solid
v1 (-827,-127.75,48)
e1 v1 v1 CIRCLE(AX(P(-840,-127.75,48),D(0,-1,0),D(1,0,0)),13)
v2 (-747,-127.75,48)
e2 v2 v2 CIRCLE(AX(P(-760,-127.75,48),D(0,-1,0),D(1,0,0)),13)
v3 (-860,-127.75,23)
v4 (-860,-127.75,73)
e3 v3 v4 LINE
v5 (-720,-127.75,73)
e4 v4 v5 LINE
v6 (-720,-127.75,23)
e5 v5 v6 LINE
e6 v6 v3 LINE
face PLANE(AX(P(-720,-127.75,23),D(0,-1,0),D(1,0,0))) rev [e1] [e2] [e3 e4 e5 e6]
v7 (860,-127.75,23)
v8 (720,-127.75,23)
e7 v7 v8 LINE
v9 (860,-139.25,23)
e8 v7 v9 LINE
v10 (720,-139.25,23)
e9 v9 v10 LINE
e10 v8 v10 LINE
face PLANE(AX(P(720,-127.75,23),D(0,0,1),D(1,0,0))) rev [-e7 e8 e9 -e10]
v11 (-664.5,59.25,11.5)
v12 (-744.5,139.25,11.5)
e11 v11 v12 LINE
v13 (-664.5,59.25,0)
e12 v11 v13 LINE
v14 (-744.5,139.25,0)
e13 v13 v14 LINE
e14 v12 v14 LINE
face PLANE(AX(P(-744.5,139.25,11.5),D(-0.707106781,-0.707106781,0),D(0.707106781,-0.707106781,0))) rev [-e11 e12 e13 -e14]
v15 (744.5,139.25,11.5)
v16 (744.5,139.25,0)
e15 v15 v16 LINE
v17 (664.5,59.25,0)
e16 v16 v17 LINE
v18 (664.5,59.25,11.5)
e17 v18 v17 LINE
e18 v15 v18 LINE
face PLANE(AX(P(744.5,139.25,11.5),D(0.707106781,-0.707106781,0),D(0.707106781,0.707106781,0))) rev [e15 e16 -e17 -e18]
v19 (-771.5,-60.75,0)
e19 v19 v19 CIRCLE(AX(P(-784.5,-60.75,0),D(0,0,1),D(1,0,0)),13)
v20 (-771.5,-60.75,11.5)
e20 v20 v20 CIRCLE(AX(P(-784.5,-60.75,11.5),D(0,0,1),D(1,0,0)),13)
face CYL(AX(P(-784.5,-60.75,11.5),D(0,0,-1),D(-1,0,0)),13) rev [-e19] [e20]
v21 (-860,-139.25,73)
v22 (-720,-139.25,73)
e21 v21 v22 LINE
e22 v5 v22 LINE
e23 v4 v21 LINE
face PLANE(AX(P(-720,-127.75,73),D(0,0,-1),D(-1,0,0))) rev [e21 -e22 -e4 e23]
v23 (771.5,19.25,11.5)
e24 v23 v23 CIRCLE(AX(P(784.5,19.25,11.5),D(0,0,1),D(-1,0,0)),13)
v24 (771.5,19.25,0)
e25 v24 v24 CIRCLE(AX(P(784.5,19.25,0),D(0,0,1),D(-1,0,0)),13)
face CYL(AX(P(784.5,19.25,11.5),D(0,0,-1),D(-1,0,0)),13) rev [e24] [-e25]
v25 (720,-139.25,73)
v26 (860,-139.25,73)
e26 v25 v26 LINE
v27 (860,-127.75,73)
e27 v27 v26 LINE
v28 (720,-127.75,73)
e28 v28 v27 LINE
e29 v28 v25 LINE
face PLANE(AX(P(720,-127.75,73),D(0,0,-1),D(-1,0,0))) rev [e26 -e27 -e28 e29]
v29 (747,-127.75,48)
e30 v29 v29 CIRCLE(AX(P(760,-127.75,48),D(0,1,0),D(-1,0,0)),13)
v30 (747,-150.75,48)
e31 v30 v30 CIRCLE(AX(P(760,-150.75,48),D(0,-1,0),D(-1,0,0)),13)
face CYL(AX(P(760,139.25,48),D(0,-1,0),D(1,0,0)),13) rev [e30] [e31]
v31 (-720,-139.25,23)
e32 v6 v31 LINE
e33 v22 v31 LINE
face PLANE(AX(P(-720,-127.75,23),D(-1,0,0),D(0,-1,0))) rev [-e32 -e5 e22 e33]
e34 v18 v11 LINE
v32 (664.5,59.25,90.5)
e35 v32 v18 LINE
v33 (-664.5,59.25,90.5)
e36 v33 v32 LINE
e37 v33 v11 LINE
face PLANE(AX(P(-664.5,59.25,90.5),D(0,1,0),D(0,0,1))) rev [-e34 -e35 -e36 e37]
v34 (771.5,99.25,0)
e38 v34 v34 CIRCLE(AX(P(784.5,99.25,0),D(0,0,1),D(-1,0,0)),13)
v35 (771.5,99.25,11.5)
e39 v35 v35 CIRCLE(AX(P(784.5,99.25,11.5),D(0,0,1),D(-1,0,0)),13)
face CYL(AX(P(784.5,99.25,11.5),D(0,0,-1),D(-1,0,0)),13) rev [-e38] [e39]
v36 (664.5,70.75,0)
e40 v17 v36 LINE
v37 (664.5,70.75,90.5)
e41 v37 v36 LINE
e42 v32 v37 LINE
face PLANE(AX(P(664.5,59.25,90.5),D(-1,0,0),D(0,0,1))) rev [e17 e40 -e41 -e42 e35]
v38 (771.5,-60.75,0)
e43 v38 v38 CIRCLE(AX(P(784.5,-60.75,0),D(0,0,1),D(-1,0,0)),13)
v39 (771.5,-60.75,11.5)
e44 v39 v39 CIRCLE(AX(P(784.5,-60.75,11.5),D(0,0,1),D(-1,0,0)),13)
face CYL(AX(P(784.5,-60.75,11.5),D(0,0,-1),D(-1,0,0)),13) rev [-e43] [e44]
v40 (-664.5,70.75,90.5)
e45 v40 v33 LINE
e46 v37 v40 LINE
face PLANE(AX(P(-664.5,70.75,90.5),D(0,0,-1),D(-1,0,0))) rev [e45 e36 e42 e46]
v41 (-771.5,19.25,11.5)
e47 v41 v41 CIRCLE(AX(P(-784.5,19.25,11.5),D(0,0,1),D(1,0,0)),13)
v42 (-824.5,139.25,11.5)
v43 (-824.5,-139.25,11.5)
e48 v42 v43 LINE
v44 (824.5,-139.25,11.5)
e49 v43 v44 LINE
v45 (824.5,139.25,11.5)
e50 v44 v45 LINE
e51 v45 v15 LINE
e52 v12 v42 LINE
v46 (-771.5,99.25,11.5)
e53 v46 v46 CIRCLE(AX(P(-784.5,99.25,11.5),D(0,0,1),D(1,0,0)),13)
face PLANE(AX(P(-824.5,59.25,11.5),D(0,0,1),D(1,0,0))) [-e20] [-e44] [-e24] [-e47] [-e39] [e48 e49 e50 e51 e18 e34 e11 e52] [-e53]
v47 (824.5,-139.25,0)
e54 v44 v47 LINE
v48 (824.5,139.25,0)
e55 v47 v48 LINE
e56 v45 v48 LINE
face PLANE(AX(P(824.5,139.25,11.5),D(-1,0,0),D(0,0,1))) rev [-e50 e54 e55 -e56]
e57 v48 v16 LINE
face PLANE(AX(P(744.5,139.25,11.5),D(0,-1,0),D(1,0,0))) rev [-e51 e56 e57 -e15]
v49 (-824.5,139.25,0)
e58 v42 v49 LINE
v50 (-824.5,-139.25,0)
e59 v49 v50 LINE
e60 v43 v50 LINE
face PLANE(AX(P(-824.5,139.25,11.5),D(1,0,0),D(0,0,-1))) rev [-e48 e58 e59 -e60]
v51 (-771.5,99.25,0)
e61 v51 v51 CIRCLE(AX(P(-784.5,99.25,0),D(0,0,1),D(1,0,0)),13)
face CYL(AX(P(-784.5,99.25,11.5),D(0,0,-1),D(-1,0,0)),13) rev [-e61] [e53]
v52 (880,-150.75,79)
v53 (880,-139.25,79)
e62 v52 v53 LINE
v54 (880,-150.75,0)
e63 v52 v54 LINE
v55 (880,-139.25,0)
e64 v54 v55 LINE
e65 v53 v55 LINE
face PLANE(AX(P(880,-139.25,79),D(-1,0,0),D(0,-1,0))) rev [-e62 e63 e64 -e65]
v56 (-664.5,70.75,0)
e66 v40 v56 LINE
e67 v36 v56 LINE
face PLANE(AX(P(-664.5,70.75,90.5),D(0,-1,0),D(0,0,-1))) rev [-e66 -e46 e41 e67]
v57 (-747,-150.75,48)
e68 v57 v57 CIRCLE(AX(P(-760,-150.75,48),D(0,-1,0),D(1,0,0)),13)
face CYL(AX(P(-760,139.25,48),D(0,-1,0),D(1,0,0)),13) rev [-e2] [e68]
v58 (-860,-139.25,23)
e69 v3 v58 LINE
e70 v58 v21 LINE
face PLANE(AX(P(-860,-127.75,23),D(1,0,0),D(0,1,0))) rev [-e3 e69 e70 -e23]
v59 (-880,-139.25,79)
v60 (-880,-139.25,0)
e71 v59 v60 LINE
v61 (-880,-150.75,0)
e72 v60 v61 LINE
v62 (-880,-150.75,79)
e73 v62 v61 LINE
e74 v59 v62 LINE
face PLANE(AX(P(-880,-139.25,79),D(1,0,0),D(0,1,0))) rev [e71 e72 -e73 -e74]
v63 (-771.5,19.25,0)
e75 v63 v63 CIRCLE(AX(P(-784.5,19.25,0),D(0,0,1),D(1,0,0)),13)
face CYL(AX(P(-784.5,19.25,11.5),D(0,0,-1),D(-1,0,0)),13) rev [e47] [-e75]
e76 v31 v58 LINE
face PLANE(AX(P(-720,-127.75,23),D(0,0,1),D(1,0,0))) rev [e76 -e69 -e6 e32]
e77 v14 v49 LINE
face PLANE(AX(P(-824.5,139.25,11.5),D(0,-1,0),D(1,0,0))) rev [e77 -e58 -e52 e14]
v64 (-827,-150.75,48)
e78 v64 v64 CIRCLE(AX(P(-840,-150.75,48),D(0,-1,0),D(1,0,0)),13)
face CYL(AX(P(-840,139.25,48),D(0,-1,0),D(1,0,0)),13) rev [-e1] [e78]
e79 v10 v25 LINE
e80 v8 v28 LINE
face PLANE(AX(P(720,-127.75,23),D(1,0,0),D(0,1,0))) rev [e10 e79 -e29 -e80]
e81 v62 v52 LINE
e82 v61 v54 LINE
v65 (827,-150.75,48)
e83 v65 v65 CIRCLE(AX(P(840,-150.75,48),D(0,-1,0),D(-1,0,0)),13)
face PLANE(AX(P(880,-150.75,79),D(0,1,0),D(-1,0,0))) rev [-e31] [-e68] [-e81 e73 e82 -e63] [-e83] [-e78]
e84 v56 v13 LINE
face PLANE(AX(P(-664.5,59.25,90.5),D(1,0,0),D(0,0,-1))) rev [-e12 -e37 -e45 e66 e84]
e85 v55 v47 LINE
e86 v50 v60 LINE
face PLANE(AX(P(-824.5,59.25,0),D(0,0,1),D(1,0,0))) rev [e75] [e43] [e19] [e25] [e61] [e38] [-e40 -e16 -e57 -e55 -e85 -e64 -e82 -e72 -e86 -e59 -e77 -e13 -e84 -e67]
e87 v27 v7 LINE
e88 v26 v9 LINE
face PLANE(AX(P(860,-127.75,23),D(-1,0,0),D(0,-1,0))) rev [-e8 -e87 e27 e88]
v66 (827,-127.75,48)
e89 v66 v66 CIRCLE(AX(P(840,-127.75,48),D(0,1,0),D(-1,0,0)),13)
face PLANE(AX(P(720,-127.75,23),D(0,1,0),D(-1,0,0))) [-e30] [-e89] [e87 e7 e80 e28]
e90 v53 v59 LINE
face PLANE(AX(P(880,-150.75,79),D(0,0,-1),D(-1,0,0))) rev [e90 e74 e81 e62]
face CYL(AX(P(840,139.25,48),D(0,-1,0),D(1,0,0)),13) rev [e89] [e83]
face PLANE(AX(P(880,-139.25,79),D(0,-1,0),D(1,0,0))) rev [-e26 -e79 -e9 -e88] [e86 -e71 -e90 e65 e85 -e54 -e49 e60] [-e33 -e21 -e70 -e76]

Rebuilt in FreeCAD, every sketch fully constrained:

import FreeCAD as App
import Part
import Sketcher


def add_polygon(sketch, points):
    """Adds a closed chain of lines whose ends are joined by coincident constraints."""
    first, n = sketch.GeometryCount, len(points)
    for a, b in zip(points, points[1:] + points[:1]):
        sketch.addGeometry(Part.LineSegment(App.Vector(*a, 0), App.Vector(*b, 0)), False)
    for i in range(n):
        sketch.addConstraint(Sketcher.Constraint("Coincident", first + i, 2, first + (i + 1) % n, 1))

doc = App.newDocument("Part")
body = doc.addObject("PartDesign::Body", "Body")

# Sketch on XY plane
sketch1 = body.newObject("Sketcher::SketchObject", "Sketch")
sketch1.AttachmentSupport = (doc.getObject("XY_Plane"), [""])
sketch1.MapMode = "FlatFace"
add_polygon(sketch1, [(-664.5, 59.25), (-744.5, 139.25), (-824.5, 139.25), (-824.5, -139.25), (824.5, -139.25), (824.5, 139.25), (744.5, 139.25), (664.5, 59.25)])  # lines 0-7
sketch1.addGeometry(Part.Circle(App.Vector(784.5, -60.75, 0), App.Vector(0, 0, 1), 13), False)  # 8
sketch1.addGeometry(Part.Circle(App.Vector(-784.5, -60.75, 0), App.Vector(0, 0, 1), 13), False)  # 9
sketch1.addGeometry(Part.Circle(App.Vector(784.5, 19.25, 0), App.Vector(0, 0, 1), 13), False)  # 10
sketch1.addGeometry(Part.Circle(App.Vector(784.5, 99.25, 0), App.Vector(0, 0, 1), 13), False)  # 11
sketch1.addGeometry(Part.Circle(App.Vector(-784.5, 19.25, 0), App.Vector(0, 0, 1), 13), False)  # 12
sketch1.addGeometry(Part.Circle(App.Vector(-784.5, 99.25, 0), App.Vector(0, 0, 1), 13), False)  # 13
sketch1.addConstraint([
    Sketcher.Constraint("Horizontal", 1),
    Sketcher.Constraint("Vertical", 2),
    Sketcher.Constraint("Horizontal", 3),
    Sketcher.Constraint("Vertical", 4),
    Sketcher.Constraint("Horizontal", 5),
    Sketcher.Constraint("Horizontal", 7),
    Sketcher.Constraint("Equal", 8, 9),
    Sketcher.Constraint("Equal", 9, 10),
    Sketcher.Constraint("Equal", 10, 11),
    Sketcher.Constraint("Equal", 11, 12),
    Sketcher.Constraint("Equal", 12, 13),
    Sketcher.Constraint("Symmetric", 1, 2, 3, 2, -1, 1),
    Sketcher.Constraint("Symmetric", 8, 3, 9, 3, -2),
    Sketcher.Constraint("Symmetric", 10, 3, 12, 3, -2),
    Sketcher.Constraint("Symmetric", 11, 3, 13, 3, -2),
    Sketcher.Constraint("Symmetric", 0, 2, 5, 2, -2),
    Sketcher.Constraint("Perpendicular", 0, 6),
    Sketcher.Constraint("Vertical", 8, 3, 10, 3),
    Sketcher.Constraint("Vertical", 10, 3, 11, 3),
    Sketcher.Constraint("Equal", 0, 6),
    Sketcher.Constraint("Diameter", 8, 26.0),
    Sketcher.Constraint("DistanceX", 1, 2, 1, 1, 80.0),
    Sketcher.Constraint("DistanceX", 3, 1, 3, 2, 1649.0),
    Sketcher.Constraint("DistanceX", 7, 2, 7, 1, 1329.0),
    Sketcher.Constraint("DistanceY", 2, 2, 2, 1, 278.5),
    Sketcher.Constraint("DistanceX", 9, 3, 8, 3, 1569.0),
    Sketcher.Constraint("DistanceY", 8, 3, 10, 3, 80.0),
    Sketcher.Constraint("DistanceY", 10, 3, 11, 3, 80.0),
    Sketcher.Constraint("DistanceY", 13, 3, 0, 2, 40.0),
])
pad1 = body.newObject("PartDesign::Pad", "Pad")
pad1.Profile = sketch1
pad1.Length = 11.5

# Sketch on XY plane
sketch2 = body.newObject("Sketcher::SketchObject", "Sketch001")
sketch2.AttachmentSupport = (doc.getObject("XY_Plane"), [""])
sketch2.MapMode = "FlatFace"
sketch2.AttachmentOffset = App.Placement(App.Vector(0, 0, 11.5), App.Rotation())
add_polygon(sketch2, [(-664.5, 70.75), (-664.5, 59.25), (664.5, 59.25), (664.5, 70.75)])  # lines 0-3
sketch2.addConstraint([
    Sketcher.Constraint("Vertical", 0),
    Sketcher.Constraint("Horizontal", 1),
    Sketcher.Constraint("Vertical", 2),
    Sketcher.Constraint("Horizontal", 3),
    Sketcher.Constraint("DistanceX", 1, 1, 1, 2, 1329.0),
    Sketcher.Constraint("DistanceY", 0, 2, 0, 1, 11.5),
    Sketcher.Constraint("DistanceX", 0, 2, -1, 1, 664.5),
    Sketcher.Constraint("DistanceY", -1, 1, 0, 2, 59.25),
])
pad2 = body.newObject("PartDesign::Pad", "Pad001")
pad2.Profile = sketch2
pad2.Type = "TwoLengths"
pad2.Length = 79
pad2.Length2 = 11.5

# Sketch on XY plane
sketch3 = body.newObject("Sketcher::SketchObject", "Sketch002")
sketch3.AttachmentSupport = (doc.getObject("XY_Plane"), [""])
sketch3.MapMode = "FlatFace"
sketch3.AttachmentOffset = App.Placement(App.Vector(0, 0, 11.5), App.Rotation())
add_polygon(sketch3, [(-880, -139.25), (-880, -150.75), (880, -150.75), (880, -139.25)])  # lines 0-3
sketch3.addConstraint([
    Sketcher.Constraint("Vertical", 0),
    Sketcher.Constraint("Horizontal", 1),
    Sketcher.Constraint("Vertical", 2),
    Sketcher.Constraint("Horizontal", 3),
    Sketcher.Constraint("DistanceX", 1, 1, 1, 2, 1760.0),
    Sketcher.Constraint("DistanceY", 0, 2, 0, 1, 11.5),
    Sketcher.Constraint("DistanceX", 0, 2, -1, 1, 880.0),
    Sketcher.Constraint("DistanceY", 0, 2, -1, 1, 150.75),
])
pad3 = body.newObject("PartDesign::Pad", "Pad002")
pad3.Profile = sketch3
pad3.Type = "TwoLengths"
pad3.Length = 67.5
pad3.Length2 = 11.5

# Sketch on XZ plane
sketch4 = body.newObject("Sketcher::SketchObject", "Sketch003")
sketch4.AttachmentSupport = (doc.getObject("XZ_Plane"), [""])
sketch4.MapMode = "FlatFace"
sketch4.AttachmentOffset = App.Placement(App.Vector(0, 0, 139.25), App.Rotation())
add_polygon(sketch4, [(860, 73), (860, 23), (720, 23), (720, 73)])  # lines 0-3
add_polygon(sketch4, [(-720, 73), (-720, 23), (-860, 23), (-860, 73)])  # lines 4-7
sketch4.addConstraint([
    Sketcher.Constraint("Vertical", 0),
    Sketcher.Constraint("Horizontal", 1),
    Sketcher.Constraint("Vertical", 2),
    Sketcher.Constraint("Horizontal", 3),
    Sketcher.Constraint("Vertical", 4),
    Sketcher.Constraint("Horizontal", 5),
    Sketcher.Constraint("Vertical", 6),
    Sketcher.Constraint("Horizontal", 7),
    Sketcher.Constraint("Symmetric", 1, 2, 4, 2, -2),
    Sketcher.Constraint("Symmetric", 3, 2, 6, 2, -2),
    Sketcher.Constraint("DistanceX", 1, 2, 1, 1, 140.0),
    Sketcher.Constraint("DistanceY", 0, 2, 0, 1, 50.0),
    Sketcher.Constraint("DistanceX", -1, 1, 0, 2, 860.0),
    Sketcher.Constraint("DistanceY", -1, 1, 0, 2, 23.0),
])
pad4 = body.newObject("PartDesign::Pad", "Pad003")
pad4.Profile = sketch4
pad4.Length = 11.5
pad4.Reversed = True

# Sketch on XZ plane
sketch5 = body.newObject("Sketcher::SketchObject", "Sketch004")
sketch5.AttachmentSupport = (doc.getObject("XZ_Plane"), [""])
sketch5.MapMode = "FlatFace"
sketch5.AttachmentOffset = App.Placement(App.Vector(0, 0, 150.75), App.Rotation())
sketch5.addGeometry([
    Part.Circle(App.Vector(-840, 48, 0), App.Vector(0, 0, 1), 13),
    Part.Circle(App.Vector(-760, 48, 0), App.Vector(0, 0, 1), 13),
    Part.Circle(App.Vector(760, 48, 0), App.Vector(0, 0, 1), 13),
    Part.Circle(App.Vector(840, 48, 0), App.Vector(0, 0, 1), 13),
], False)
sketch5.addConstraint([
    Sketcher.Constraint("Equal", 0, 1),
    Sketcher.Constraint("Equal", 1, 2),
    Sketcher.Constraint("Equal", 2, 3),
    Sketcher.Constraint("Symmetric", 1, 3, 2, 3, -2),
    Sketcher.Constraint("Symmetric", 0, 3, 3, 3, -2),
    Sketcher.Constraint("Horizontal", 0, 3, 1, 3),
    Sketcher.Constraint("Diameter", 0, 26.0),
    Sketcher.Constraint("DistanceX", 0, 3, -1, 1, 840.0),
    Sketcher.Constraint("DistanceY", -1, 1, 0, 3, 48.0),
    Sketcher.Constraint("DistanceX", 1, 3, -1, 1, 760.0),
])
pocket1 = body.newObject("PartDesign::Pocket", "Pocket")
pocket1.Profile = sketch5
pocket1.Type = "ThroughAll"

doc.recompute()
